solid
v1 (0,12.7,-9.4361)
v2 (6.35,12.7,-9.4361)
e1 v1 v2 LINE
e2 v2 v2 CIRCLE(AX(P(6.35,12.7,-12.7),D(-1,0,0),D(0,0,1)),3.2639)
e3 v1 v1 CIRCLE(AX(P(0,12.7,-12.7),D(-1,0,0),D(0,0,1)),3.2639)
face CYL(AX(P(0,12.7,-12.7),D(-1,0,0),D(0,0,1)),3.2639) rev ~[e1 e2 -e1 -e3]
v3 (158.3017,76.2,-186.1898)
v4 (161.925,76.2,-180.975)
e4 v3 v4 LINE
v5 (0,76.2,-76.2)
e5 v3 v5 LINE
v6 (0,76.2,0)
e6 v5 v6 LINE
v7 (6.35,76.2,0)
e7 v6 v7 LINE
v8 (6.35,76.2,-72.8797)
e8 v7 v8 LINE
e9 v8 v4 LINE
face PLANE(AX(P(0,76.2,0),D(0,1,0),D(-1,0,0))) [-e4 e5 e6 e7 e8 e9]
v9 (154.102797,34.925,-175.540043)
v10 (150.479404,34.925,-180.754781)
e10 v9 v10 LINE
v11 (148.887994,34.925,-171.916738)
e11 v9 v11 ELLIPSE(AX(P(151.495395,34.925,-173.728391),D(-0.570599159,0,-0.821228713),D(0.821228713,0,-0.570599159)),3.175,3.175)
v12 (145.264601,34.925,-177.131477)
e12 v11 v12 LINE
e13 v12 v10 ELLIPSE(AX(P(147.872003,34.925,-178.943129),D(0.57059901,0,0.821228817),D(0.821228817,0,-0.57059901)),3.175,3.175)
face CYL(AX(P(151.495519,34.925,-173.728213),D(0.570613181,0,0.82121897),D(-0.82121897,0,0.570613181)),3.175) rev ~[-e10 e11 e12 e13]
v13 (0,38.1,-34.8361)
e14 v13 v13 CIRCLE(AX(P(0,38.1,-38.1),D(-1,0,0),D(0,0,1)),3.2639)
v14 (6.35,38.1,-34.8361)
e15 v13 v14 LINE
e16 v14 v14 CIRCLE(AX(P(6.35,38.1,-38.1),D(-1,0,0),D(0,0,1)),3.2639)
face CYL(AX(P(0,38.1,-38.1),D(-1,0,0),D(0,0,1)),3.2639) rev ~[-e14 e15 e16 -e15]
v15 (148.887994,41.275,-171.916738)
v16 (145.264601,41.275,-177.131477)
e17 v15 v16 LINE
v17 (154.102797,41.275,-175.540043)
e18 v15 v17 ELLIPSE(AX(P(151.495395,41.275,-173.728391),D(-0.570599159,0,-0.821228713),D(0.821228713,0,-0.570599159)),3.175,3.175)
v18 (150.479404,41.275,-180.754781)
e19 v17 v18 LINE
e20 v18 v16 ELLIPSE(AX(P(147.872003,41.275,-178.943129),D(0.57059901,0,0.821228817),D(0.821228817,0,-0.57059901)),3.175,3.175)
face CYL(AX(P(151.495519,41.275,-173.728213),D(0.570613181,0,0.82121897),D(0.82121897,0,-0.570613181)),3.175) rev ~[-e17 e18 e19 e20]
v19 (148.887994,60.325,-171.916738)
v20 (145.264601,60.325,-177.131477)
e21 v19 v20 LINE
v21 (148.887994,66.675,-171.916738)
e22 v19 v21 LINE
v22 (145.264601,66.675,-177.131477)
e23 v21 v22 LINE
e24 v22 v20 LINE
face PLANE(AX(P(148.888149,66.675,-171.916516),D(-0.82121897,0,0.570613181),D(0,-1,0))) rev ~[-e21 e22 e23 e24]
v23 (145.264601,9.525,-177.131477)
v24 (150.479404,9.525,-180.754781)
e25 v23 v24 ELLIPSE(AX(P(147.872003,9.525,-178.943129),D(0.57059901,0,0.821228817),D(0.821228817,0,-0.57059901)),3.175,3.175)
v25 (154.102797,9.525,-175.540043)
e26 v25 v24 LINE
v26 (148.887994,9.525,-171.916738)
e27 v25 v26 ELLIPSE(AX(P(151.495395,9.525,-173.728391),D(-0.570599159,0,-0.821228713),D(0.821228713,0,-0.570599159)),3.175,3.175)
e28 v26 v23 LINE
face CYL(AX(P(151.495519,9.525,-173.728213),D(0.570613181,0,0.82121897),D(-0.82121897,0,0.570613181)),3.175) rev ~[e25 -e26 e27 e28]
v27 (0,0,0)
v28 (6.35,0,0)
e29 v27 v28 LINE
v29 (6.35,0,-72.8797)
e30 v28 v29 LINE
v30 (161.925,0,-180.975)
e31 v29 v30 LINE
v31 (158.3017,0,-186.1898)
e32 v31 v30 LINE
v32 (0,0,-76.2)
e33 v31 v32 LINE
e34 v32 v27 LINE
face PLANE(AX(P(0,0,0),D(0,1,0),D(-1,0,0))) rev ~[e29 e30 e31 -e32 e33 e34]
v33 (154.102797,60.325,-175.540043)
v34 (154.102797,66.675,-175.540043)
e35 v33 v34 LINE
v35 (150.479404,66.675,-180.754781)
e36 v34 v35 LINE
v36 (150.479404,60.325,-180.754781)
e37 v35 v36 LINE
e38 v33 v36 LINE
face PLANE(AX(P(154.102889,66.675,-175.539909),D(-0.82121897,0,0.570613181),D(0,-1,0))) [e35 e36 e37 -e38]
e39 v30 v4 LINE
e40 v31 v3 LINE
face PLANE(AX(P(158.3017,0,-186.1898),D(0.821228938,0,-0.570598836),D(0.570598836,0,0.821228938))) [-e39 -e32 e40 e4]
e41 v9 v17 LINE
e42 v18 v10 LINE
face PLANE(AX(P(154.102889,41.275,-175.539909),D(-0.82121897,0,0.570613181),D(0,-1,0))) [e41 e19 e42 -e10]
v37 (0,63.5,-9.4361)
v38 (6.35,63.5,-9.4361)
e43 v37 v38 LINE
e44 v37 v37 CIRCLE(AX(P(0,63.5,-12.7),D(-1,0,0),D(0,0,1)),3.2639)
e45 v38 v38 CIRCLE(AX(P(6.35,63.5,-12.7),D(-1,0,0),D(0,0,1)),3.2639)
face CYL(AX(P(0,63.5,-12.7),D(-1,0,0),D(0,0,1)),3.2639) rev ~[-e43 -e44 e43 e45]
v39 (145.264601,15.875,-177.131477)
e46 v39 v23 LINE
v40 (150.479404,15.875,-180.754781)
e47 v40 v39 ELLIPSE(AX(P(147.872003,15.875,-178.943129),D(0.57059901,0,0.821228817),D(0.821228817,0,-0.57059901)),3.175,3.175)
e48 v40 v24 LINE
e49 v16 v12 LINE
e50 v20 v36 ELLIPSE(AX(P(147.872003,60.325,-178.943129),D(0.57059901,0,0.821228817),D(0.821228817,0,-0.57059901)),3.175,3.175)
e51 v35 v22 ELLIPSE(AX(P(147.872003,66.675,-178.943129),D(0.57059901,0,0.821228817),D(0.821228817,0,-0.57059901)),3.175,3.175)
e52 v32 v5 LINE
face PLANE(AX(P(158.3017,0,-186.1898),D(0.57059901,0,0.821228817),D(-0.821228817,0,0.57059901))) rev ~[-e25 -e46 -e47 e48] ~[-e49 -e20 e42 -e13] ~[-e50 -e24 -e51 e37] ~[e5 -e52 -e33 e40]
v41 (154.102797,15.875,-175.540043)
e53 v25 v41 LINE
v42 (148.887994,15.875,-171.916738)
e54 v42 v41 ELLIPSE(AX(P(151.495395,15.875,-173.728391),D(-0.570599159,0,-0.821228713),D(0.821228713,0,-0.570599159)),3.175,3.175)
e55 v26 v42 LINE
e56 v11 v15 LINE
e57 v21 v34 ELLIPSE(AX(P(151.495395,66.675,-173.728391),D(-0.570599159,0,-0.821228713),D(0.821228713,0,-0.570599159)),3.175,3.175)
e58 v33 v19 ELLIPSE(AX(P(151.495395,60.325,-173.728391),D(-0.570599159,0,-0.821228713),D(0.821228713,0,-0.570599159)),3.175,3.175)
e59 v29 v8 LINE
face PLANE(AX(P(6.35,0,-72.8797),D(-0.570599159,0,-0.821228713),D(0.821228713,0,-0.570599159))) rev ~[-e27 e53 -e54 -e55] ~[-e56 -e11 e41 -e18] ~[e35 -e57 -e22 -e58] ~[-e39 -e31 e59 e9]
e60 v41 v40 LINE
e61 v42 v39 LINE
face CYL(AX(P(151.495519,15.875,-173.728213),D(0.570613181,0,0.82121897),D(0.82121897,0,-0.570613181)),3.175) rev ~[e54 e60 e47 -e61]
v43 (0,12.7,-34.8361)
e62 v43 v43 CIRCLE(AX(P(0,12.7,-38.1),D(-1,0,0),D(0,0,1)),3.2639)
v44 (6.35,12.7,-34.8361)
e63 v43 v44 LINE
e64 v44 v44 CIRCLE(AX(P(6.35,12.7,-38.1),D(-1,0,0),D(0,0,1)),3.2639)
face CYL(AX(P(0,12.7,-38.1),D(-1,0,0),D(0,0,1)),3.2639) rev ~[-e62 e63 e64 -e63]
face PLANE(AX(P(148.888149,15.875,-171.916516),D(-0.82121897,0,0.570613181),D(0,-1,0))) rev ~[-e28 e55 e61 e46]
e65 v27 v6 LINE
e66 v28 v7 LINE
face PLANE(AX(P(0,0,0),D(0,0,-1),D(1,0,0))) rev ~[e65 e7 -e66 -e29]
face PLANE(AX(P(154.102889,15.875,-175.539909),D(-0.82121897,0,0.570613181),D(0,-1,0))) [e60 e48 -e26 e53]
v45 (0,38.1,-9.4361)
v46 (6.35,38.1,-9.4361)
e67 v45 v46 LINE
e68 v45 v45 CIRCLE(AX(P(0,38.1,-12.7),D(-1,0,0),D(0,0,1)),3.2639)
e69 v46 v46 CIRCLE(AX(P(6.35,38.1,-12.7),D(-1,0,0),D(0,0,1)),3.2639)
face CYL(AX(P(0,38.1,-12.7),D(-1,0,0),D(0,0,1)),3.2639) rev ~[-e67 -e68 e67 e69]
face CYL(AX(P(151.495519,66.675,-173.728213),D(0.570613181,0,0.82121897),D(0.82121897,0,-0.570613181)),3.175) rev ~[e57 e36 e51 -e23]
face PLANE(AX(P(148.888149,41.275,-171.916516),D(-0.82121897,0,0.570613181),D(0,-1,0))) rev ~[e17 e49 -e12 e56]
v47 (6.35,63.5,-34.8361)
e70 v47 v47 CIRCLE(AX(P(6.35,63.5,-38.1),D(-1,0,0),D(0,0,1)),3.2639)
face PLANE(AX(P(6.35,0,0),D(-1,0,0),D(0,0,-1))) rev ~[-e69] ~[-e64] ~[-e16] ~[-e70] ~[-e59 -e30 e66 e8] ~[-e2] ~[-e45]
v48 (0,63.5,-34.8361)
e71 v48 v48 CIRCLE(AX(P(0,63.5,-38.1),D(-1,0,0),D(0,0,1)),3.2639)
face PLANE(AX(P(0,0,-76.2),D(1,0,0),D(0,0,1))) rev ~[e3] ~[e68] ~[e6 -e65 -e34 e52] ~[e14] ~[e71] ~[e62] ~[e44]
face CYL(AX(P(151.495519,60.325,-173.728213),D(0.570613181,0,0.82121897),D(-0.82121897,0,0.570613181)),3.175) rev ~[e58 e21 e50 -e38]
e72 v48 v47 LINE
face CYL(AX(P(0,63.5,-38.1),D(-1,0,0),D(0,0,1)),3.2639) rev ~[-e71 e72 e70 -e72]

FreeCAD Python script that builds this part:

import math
import FreeCAD as App
import Part
import Sketcher

V = App.Vector
Q = App.Units.Quantity

doc = App.newDocument("Part")
body = doc.addObject("PartDesign::Body", "Body")

# Sketch on XZ plane
sketch1 = doc.addObject("Sketcher::SketchObject", "Sketch")
body.addObject(sketch1)
sketch1.AttachmentSupport = (doc.XZ_Plane, [""])
sketch1.MapMode = "FlatFace"
sketch1.addGeometry([
    Part.LineSegment(V(0, -76, 0), V(0, 0, 0)),  # 0
    Part.LineSegment(V(0, 0, 0), V(6, 0, 0)),  # 1
    Part.LineSegment(V(6, 0, 0), V(6, -73, 0)),  # 2
    Part.LineSegment(V(6, -73, 0), V(162, -181, 0)),  # 3
    Part.LineSegment(V(162, -181, 0), V(158, -186, 0)),  # 4
    Part.LineSegment(V(158, -186, 0), V(0, -76, 0)),  # 5
], False)
sketch1.addConstraint([
    Sketcher.Constraint("Coincident", 0, 2, 1, 1),
    Sketcher.Constraint("Coincident", 1, 2, 2, 1),
    Sketcher.Constraint("Coincident", 2, 2, 3, 1),
    Sketcher.Constraint("Coincident", 3, 2, 4, 1),
    Sketcher.Constraint("Coincident", 4, 2, 5, 1),
    Sketcher.Constraint("Coincident", 5, 2, 0, 1),
    Sketcher.Constraint("Vertical", 0),
    Sketcher.Constraint("Horizontal", 1),
    Sketcher.Constraint("Vertical", 2),
    Sketcher.Constraint("Coincident", 0, 2, -1, 1),
    Sketcher.Constraint("Perpendicular", 3, 4),
    Sketcher.Constraint("Perpendicular", 4, 5),
    Sketcher.Constraint("DistanceY", 0, 1, 0, 2, Q("3 in")),
    Sketcher.Constraint("DistanceX", 1, 1, 1, 2, Q("0.25 in")),
    Sketcher.Constraint("Distance", 4, Q("0.25 in")),
    Sketcher.Constraint("DistanceX", 2, 2, 3, 2, Q("6.125 in")),
    Sketcher.Constraint("DistanceY", 3, 2, -1, 1, Q("7.125 in")),
])
pad1 = doc.addObject("PartDesign::Pad", "Pad")
body.addObject(pad1)
pad1.Profile = sketch1
pad1.Length = Q("3 in")
pad1.Reversed = True

# Sketch on YZ plane
sketch2 = doc.addObject("Sketcher::SketchObject", "Sketch001")
body.addObject(sketch2)
sketch2.AttachmentSupport = (doc.YZ_Plane, [""])
sketch2.MapMode = "FlatFace"
sketch2.addGeometry([
    Part.Circle(V(12.7, -12.7, 0), V(0, 0, 1), 3.3),  # 0
    Part.Circle(V(38.1, -12.7, 0), V(0, 0, 1), 3.3),  # 1
    Part.Circle(V(63.5, -12.7, 0), V(0, 0, 1), 3.3),  # 2
    Part.Circle(V(63.5, -38.1, 0), V(0, 0, 1), 3.3),  # 3
    Part.Circle(V(38.1, -38.1, 0), V(0, 0, 1), 3.3),  # 4
    Part.Circle(V(12.7, -38.1, 0), V(0, 0, 1), 3.3),  # 5
], False)
sketch2.addConstraint([
    Sketcher.Constraint("Equal", 0, 1),
    Sketcher.Constraint("Equal", 1, 2),
    Sketcher.Constraint("Equal", 2, 3),
    Sketcher.Constraint("Equal", 3, 4),
    Sketcher.Constraint("Equal", 4, 5),
    Sketcher.Constraint("Horizontal", 0, 3, 1, 3),
    Sketcher.Constraint("Horizontal", 1, 3, 2, 3),
    Sketcher.Constraint("Horizontal", 3, 3, 4, 3),
    Sketcher.Constraint("Horizontal", 4, 3, 5, 3),
    Sketcher.Constraint("Vertical", 2, 3, 3, 3),
    Sketcher.Constraint("Vertical", 1, 3, 4, 3),
    Sketcher.Constraint("Vertical", 0, 3, 5, 3),
    Sketcher.Constraint("Diameter", 0, Q("0.257 in")),
    Sketcher.Constraint("DistanceX", 0, 3, 1, 3, Q("1 in")),
    Sketcher.Constraint("DistanceX", 1, 3, 2, 3, Q("1 in")),
    Sketcher.Constraint("DistanceY", 3, 3, 2, 3, Q("1 in")),
    Sketcher.Constraint("DistanceX", -1, 1, 0, 3, Q("0.5 in")),
    Sketcher.Constraint("DistanceY", 0, 3, -1, 1, Q("0.5 in")),
])
pocket1 = doc.addObject("PartDesign::Pocket", "Pocket")
body.addObject(pocket1)
pocket1.Profile = sketch2
pocket1.Type = "ThroughAll"
pocket1.Reversed = True

# Sketch on an angled plane
sketch3 = doc.addObject("Sketcher::SketchObject", "Sketch002")
body.addObject(sketch3)
sketch3.Placement = App.Placement(V(161.925, 0, -180.975), App.Rotation(V(0.82121897, 0, -0.570613181), V(0, 0.999999999, 0), V(0.570613181, 0, 0.82121897), "ZXY"))
sketch3.addGeometry([
    Part.LineSegment(V(-9.5, 60.3, 0), V(-9.5, 66.7, 0)),  # 0
    Part.ArcOfCircle(Part.Circle(V(-12.7, 66.7, 0), V(0, 0, 1), 3.2), math.radians(0), math.radians(180)),  # 1
    Part.LineSegment(V(-15.9, 66.7, 0), V(-15.9, 60.3, 0)),  # 2
    Part.ArcOfCircle(Part.Circle(V(-12.7, 60.3, 0), V(0, 0, 1), 3.2), math.radians(180), math.radians(360)),  # 3
    Part.LineSegment(V(-9.5, 34.9, 0), V(-9.5, 41.3, 0)),  # 4
    Part.ArcOfCircle(Part.Circle(V(-12.7, 41.3, 0), V(0, 0, 1), 3.2), math.radians(0), math.radians(180)),  # 5
    Part.LineSegment(V(-15.9, 41.3, 0), V(-15.9, 34.9, 0)),  # 6
    Part.ArcOfCircle(Part.Circle(V(-12.7, 34.9, 0), V(0, 0, 1), 3.2), math.radians(180), math.radians(360)),  # 7
    Part.LineSegment(V(-9.5, 9.5, 0), V(-9.5, 15.9, 0)),  # 8
    Part.ArcOfCircle(Part.Circle(V(-12.7, 15.9, 0), V(0, 0, 1), 3.2), math.radians(0), math.radians(180)),  # 9
    Part.LineSegment(V(-15.9, 15.9, 0), V(-15.9, 9.5, 0)),  # 10
    Part.ArcOfCircle(Part.Circle(V(-12.7, 9.5, 0), V(0, 0, 1), 3.2), math.radians(180), math.radians(360)),  # 11
], False)
sketch3.addConstraint([
    Sketcher.Constraint("Tangent", 0, 2, 1, 1),
    Sketcher.Constraint("Tangent", 1, 2, 2, 1),
    Sketcher.Constraint("Tangent", 2, 2, 3, 1),
    Sketcher.Constraint("Tangent", 3, 2, 0, 1),
    Sketcher.Constraint("Tangent", 4, 2, 5, 1),
    Sketcher.Constraint("Tangent", 5, 2, 6, 1),
    Sketcher.Constraint("Tangent", 6, 2, 7, 1),
    Sketcher.Constraint("Tangent", 7, 2, 4, 1),
    Sketcher.Constraint("Tangent", 8, 2, 9, 1),
    Sketcher.Constraint("Tangent", 9, 2, 10, 1),
    Sketcher.Constraint("Tangent", 10, 2, 11, 1),
    Sketcher.Constraint("Tangent", 11, 2, 8, 1),
    Sketcher.Constraint("Vertical", 0),
    Sketcher.Constraint("Vertical", 2),
    Sketcher.Constraint("Vertical", 4),
    Sketcher.Constraint("Vertical", 6),
    Sketcher.Constraint("Vertical", 8),
    Sketcher.Constraint("Vertical", 10),
    Sketcher.Constraint("Equal", 3, 5),
    Sketcher.Constraint("Equal", 7, 9),
    Sketcher.Constraint("Vertical", 3, 3, 5, 3),
    Sketcher.Constraint("Vertical", 7, 3, 9, 3),
    Sketcher.Constraint("Equal", 2, 4),
    Sketcher.Constraint("Equal", 6, 8),
    Sketcher.Constraint("Radius", 1, Q("0.125 in")),
    Sketcher.Constraint("DistanceY", 5, 3, 1, 3, Q("1 in")),
    Sketcher.Constraint("DistanceY", 9, 3, 5, 3, Q("1 in")),
    Sketcher.Constraint("DistanceY", 0, 1, 0, 2, Q("0.25 in")),
    Sketcher.Constraint("DistanceX", 1, 3, -1, 1, Q("0.5 in")),
    Sketcher.Constraint("DistanceY", -1, 1, 1, 3, Q("2.625 in")),
])
pocket2 = doc.addObject("PartDesign::Pocket", "Pocket001")
body.addObject(pocket2)
pocket2.Profile = sketch3
pocket2.Type = "ThroughAll"

doc.recompute()
